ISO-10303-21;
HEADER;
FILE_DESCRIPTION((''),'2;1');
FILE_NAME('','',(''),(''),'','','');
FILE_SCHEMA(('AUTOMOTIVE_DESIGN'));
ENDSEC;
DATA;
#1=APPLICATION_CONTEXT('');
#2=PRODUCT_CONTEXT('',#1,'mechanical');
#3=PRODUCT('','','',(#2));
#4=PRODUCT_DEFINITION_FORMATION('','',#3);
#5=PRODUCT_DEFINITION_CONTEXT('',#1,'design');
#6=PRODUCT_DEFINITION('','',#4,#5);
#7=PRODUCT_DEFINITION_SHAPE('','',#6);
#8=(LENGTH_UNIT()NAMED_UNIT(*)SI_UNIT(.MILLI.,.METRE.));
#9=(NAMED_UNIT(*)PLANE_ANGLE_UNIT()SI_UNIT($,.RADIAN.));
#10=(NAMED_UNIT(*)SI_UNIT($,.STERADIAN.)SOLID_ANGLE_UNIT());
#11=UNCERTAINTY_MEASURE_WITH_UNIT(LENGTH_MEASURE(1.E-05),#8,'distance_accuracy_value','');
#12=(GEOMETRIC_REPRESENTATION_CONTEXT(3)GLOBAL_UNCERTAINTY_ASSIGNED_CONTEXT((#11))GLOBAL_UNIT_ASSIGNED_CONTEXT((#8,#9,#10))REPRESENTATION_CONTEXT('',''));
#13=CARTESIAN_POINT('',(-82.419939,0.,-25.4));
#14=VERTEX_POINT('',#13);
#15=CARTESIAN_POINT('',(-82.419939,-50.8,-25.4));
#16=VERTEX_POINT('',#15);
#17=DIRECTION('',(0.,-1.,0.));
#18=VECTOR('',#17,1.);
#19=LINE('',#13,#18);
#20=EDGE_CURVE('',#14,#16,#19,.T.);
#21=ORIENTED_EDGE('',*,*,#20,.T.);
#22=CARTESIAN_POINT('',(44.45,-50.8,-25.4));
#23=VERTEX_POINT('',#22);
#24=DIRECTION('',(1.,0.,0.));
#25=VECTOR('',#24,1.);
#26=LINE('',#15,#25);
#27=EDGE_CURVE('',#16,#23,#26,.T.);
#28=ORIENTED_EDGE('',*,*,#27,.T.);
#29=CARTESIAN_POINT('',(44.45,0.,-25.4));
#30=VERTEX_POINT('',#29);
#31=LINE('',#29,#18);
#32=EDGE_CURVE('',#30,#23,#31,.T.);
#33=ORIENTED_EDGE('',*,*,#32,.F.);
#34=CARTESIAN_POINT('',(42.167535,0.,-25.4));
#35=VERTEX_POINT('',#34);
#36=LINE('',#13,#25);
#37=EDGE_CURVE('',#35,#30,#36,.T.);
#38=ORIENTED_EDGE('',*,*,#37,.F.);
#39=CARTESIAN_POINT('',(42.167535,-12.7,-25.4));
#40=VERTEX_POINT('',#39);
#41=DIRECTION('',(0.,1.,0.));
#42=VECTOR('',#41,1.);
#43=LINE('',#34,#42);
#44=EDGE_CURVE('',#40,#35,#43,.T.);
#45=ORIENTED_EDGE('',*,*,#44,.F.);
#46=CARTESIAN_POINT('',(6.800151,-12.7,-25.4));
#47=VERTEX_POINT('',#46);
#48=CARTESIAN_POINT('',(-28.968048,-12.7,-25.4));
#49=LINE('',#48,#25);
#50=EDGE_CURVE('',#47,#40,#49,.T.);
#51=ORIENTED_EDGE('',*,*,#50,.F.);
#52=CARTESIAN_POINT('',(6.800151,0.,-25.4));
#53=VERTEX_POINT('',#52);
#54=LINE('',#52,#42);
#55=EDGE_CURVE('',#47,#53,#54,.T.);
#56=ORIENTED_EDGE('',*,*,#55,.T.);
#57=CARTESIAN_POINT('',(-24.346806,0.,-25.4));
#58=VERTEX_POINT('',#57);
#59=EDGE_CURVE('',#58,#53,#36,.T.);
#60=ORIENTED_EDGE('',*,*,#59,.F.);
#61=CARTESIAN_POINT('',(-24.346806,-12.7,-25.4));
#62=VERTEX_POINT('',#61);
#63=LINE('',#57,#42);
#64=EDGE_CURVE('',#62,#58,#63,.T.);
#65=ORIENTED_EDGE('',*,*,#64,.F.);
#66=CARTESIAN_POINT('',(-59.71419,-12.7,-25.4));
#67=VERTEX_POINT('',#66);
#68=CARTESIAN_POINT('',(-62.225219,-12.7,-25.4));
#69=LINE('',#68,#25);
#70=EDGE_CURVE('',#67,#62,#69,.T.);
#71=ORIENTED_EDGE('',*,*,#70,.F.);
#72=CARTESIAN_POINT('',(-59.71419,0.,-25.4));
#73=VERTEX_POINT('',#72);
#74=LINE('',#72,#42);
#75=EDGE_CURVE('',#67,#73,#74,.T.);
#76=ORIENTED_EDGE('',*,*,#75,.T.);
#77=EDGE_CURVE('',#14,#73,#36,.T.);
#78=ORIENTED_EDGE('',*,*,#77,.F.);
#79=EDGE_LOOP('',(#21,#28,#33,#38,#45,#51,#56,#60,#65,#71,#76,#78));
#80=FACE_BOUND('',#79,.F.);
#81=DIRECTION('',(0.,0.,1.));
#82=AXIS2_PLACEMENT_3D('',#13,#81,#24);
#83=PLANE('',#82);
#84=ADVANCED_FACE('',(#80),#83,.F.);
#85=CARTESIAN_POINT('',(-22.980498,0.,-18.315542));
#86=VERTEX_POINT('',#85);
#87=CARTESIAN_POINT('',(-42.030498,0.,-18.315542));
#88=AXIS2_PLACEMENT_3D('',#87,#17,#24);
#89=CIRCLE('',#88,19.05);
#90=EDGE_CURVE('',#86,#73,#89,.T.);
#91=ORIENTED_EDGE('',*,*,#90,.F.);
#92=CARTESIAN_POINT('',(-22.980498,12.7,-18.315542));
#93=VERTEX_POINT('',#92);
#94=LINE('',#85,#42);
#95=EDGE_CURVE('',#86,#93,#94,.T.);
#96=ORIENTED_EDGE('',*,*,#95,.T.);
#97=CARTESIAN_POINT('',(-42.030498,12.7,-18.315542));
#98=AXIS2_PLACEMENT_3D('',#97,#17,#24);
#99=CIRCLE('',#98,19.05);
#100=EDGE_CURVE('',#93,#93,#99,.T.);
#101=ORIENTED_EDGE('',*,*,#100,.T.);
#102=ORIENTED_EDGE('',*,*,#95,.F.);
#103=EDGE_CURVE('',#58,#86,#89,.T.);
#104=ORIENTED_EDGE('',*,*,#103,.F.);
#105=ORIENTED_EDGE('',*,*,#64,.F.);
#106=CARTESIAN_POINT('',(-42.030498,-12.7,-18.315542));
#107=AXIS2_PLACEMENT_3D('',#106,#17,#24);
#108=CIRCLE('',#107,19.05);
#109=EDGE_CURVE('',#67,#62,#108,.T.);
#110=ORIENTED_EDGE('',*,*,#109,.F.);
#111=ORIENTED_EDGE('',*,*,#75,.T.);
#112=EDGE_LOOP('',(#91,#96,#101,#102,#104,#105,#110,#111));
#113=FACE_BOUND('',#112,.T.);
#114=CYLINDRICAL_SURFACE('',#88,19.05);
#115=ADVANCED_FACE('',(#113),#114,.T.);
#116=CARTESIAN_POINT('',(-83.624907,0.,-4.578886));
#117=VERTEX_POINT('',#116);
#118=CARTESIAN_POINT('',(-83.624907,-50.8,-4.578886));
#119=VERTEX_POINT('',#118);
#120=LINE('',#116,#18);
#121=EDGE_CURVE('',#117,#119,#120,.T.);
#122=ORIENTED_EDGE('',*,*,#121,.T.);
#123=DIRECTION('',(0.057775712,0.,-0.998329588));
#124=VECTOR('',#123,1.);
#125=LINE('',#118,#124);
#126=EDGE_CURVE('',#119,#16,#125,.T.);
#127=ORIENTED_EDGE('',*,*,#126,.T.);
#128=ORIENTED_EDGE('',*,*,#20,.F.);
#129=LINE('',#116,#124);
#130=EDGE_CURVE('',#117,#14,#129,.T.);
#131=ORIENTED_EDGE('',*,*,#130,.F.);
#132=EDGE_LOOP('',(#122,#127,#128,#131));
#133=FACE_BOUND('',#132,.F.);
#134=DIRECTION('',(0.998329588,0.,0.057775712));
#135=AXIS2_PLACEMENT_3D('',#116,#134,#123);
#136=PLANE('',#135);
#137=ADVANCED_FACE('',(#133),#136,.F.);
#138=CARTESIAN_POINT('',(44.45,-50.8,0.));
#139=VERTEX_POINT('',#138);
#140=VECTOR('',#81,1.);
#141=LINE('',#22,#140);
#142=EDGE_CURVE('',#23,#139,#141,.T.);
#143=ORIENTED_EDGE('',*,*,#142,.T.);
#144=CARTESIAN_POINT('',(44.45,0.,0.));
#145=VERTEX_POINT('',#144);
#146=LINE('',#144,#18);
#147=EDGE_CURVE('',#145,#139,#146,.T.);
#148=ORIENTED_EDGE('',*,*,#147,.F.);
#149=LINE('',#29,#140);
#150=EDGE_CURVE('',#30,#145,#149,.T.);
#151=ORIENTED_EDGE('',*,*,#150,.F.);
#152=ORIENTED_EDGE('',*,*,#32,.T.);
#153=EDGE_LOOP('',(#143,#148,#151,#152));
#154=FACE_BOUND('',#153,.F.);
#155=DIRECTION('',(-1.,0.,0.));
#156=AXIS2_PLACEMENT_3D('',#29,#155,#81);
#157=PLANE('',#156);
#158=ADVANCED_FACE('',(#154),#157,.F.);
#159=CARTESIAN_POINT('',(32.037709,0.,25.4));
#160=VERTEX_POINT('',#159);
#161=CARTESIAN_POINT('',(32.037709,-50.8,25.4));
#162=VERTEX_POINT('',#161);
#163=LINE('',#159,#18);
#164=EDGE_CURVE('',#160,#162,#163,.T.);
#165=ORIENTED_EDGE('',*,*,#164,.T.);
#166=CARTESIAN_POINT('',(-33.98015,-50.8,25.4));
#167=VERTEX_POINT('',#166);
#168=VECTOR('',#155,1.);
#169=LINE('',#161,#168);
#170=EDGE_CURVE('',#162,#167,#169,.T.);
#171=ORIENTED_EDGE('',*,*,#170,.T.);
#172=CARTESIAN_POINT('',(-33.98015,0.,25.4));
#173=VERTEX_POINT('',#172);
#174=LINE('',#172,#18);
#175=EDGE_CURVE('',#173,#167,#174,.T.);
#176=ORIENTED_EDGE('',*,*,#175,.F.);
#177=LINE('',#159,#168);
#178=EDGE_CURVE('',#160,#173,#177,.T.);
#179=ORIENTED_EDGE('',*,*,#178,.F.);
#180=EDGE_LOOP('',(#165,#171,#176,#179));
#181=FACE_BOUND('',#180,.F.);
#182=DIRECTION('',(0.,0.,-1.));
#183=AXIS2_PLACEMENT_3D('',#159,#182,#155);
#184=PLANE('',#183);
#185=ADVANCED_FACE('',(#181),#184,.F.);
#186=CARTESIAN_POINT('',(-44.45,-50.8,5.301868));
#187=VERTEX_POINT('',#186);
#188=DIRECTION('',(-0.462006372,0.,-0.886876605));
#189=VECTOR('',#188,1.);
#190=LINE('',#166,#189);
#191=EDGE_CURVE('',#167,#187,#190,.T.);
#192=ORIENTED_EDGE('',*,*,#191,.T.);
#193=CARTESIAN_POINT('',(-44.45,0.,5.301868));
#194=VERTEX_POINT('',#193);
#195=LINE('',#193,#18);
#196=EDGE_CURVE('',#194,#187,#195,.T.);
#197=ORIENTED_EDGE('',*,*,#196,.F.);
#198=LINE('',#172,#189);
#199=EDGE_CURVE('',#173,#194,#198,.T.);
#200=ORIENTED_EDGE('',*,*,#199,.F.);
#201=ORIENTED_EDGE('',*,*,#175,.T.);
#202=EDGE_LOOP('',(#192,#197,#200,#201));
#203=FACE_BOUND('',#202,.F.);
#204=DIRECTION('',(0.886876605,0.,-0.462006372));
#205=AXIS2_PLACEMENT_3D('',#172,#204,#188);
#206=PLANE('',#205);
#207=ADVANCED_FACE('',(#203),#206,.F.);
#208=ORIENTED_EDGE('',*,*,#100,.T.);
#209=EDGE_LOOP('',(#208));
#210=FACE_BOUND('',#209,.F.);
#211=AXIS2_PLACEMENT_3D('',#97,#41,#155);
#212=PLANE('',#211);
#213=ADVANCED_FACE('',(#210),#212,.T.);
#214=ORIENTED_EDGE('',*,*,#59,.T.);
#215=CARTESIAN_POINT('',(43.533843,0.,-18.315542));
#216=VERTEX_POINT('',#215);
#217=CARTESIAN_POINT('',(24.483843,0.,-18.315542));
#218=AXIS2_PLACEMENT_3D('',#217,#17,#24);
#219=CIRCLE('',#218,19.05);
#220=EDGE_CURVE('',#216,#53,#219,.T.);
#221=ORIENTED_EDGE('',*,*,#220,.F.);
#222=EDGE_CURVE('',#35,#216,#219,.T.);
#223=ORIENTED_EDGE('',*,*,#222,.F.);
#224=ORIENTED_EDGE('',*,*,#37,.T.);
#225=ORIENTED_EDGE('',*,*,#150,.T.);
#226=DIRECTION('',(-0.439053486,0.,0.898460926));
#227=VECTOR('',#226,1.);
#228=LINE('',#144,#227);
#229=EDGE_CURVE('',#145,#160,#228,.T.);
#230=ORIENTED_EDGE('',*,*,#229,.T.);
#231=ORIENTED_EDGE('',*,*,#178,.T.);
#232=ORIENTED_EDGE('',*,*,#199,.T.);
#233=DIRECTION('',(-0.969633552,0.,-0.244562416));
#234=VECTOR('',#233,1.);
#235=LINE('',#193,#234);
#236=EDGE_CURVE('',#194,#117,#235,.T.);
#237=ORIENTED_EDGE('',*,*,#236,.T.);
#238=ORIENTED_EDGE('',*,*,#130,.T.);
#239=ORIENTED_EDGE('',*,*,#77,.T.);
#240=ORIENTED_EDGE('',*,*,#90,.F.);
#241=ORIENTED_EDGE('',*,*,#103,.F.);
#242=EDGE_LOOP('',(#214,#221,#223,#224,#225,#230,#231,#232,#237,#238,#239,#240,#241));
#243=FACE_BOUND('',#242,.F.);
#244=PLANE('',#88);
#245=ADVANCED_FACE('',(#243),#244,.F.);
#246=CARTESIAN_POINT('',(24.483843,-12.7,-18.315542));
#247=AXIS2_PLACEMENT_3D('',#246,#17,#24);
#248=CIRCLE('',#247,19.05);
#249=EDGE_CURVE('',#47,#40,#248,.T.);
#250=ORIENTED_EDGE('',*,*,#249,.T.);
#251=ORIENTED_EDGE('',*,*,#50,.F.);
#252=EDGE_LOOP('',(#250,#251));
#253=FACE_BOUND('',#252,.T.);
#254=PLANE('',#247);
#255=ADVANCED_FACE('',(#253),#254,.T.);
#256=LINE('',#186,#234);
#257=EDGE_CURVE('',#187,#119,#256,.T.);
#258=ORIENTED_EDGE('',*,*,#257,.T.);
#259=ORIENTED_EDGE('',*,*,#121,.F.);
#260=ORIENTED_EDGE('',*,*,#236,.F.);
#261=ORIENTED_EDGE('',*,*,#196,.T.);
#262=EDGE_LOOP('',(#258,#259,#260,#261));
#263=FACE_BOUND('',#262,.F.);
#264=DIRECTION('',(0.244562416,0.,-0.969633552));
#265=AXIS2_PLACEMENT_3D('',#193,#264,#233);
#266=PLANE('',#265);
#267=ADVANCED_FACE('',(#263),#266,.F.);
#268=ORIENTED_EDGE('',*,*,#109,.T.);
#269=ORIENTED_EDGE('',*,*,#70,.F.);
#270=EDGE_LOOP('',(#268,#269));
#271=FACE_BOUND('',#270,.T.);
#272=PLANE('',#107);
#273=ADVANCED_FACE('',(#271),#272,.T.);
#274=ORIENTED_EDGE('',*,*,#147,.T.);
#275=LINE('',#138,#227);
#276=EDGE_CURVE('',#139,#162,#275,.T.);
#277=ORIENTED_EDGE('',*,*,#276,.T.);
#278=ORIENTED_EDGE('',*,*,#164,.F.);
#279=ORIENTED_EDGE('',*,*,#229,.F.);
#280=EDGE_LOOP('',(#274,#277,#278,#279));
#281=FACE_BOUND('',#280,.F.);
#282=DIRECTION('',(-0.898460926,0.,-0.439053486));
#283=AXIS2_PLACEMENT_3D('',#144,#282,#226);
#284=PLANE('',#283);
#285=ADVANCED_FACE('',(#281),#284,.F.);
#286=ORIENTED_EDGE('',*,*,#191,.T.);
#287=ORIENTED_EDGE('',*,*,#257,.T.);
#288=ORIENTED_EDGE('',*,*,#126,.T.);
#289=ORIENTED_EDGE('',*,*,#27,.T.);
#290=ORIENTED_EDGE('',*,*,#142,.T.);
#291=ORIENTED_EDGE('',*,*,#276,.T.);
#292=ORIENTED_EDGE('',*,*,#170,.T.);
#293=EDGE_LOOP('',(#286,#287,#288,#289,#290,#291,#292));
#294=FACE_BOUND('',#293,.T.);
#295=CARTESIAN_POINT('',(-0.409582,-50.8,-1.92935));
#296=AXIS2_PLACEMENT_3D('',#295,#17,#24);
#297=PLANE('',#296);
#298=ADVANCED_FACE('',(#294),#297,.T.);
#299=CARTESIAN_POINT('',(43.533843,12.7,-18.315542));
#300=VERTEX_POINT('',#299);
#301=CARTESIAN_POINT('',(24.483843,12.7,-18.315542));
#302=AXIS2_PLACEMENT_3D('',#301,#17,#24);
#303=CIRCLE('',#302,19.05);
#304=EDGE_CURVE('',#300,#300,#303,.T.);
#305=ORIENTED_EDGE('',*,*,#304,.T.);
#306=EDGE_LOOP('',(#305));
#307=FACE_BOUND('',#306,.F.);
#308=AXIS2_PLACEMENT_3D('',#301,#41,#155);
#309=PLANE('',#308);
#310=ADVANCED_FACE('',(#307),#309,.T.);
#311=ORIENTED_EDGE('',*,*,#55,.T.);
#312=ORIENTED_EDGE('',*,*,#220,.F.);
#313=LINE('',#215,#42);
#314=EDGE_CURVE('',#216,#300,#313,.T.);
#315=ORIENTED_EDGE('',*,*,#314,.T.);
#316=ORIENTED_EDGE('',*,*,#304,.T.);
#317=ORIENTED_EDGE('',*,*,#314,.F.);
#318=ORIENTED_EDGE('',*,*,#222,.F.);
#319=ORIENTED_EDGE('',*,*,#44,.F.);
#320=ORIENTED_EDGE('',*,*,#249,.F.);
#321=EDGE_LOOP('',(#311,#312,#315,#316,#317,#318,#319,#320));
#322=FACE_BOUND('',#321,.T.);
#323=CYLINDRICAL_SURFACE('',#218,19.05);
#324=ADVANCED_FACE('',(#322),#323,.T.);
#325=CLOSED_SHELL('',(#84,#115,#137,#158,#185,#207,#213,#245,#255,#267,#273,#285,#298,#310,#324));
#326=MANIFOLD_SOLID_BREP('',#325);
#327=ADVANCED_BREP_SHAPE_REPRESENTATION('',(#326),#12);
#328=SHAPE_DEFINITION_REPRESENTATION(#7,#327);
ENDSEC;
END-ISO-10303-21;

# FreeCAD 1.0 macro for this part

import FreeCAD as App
import Part
import Sketcher
from FreeCAD import Vector
Q = App.Units.Quantity

doc = App.newDocument("Part")
body = doc.addObject("PartDesign::Body", "Body")

sketch1 = doc.addObject("Sketcher::SketchObject", "Sketch")
body.addObject(sketch1)
sketch1.AttachmentSupport = (doc.XZ_Plane, [""])
sketch1.MapMode = "FlatFace"
sketch1.addGeometry(Part.LineSegment(Vector(44, -25, 0), Vector(44, 0, 0)), False)
sketch1.addGeometry(Part.LineSegment(Vector(44, 0, 0), Vector(32, 25, 0)), False)
sketch1.addGeometry(Part.LineSegment(Vector(32, 25, 0), Vector(-34, 25, 0)), False)
sketch1.addGeometry(Part.LineSegment(Vector(-34, 25, 0), Vector(-44, 5, 0)), False)
sketch1.addGeometry(Part.LineSegment(Vector(-44, 5, 0), Vector(-84, -5, 0)), False)
sketch1.addGeometry(Part.LineSegment(Vector(-84, -5, 0), Vector(-82, -25, 0)), False)
sketch1.addGeometry(Part.LineSegment(Vector(-82, -25, 0), Vector(44, -25, 0)), False)
sketch1.addConstraint(Sketcher.Constraint("Coincident", 0, 2, 1, 1))
sketch1.addConstraint(Sketcher.Constraint("Coincident", 1, 2, 2, 1))
sketch1.addConstraint(Sketcher.Constraint("Coincident", 2, 2, 3, 1))
sketch1.addConstraint(Sketcher.Constraint("Coincident", 3, 2, 4, 1))
sketch1.addConstraint(Sketcher.Constraint("Coincident", 4, 2, 5, 1))
sketch1.addConstraint(Sketcher.Constraint("Coincident", 5, 2, 6, 1))
sketch1.addConstraint(Sketcher.Constraint("Coincident", 6, 2, 0, 1))
sketch1.addConstraint(Sketcher.Constraint("Vertical", 0))
sketch1.addConstraint(Sketcher.Constraint("Horizontal", 2))
sketch1.addConstraint(Sketcher.Constraint("Horizontal", 6))
sketch1.addConstraint(Sketcher.Constraint("PointOnObject", 0, 2, -1))
sketch1.addConstraint(Sketcher.Constraint("DistanceY", 0, 1, 0, 2, Q("1 in")))
sketch1.addConstraint(Sketcher.Constraint("DistanceY", -1, 1, 1, 2, Q("1 in")))
sketch1.addConstraint(Sketcher.Constraint("DistanceX", 3, 2, 0, 2, Q("3.5 in")))
sketch1.addConstraint(Sketcher.Constraint("DistanceX", -1, 1, 0, 2, Q("1.75 in")))
sketch1.addConstraint(Sketcher.Constraint("Distance", 3, 22.661701))
sketch1.addConstraint(Sketcher.Constraint("DistanceX", 2, 2, 2, 1, 66.017859))
sketch1.addConstraint(Sketcher.Constraint("DistanceX", 6, 1, 6, 2, 126.869939))
sketch1.addConstraint(Sketcher.Constraint("DistanceX", -1, 1, 1, 2, 32.037709))
sketch1.addConstraint(Sketcher.Constraint("Distance", 4, 40.401765))
sketch1.addConstraint(Sketcher.Constraint("Distance", 5, 20.855952))
pad1 = doc.addObject("PartDesign::Pad", "Pad")
body.addObject(pad1)
pad1.Profile = sketch1
pad1.Length = Q("2 in")

sketch2 = doc.addObject("Sketcher::SketchObject", "Sketch001")
body.addObject(sketch2)
sketch2.AttachmentSupport = (doc.XZ_Plane, [""])
sketch2.MapMode = "FlatFace"
sketch2.addGeometry(Part.Circle(Vector(-42, -18, 0), Vector(0, 0, 1), 19), False)
sketch2.addGeometry(Part.Circle(Vector(24, -18, 0), Vector(0, 0, 1), 19), False)
sketch2.addConstraint(Sketcher.Constraint("Equal", 0, 1))
sketch2.addConstraint(Sketcher.Constraint("Horizontal", 0, 3, 1, 3))
sketch2.addConstraint(Sketcher.Constraint("Diameter", 0, Q("1.5 in")))
sketch2.addConstraint(Sketcher.Constraint("DistanceX", 0, 3, -1, 1, 42.030498))
sketch2.addConstraint(Sketcher.Constraint("DistanceX", 0, 3, 1, 3, 66.514341))
sketch2.addConstraint(Sketcher.Constraint("DistanceY", 0, 3, -1, 1, 18.315542))
pocket1 = doc.addObject("PartDesign::Pocket", "Pocket")
body.addObject(pocket1)
pocket1.Profile = sketch2
pocket1.Length = Q("0.5 in")
pocket1.Reversed = True
body2 = doc.addObject("PartDesign::Body", "Body001")

sketch3 = doc.addObject("Sketcher::SketchObject", "Sketch002")
body2.addObject(sketch3)
sketch3.AttachmentSupport = (doc.getObject("XZ_Plane001"), [""])
sketch3.MapMode = "FlatFace"
sketch3.addGeometry(Part.Circle(Vector(24, -18, 0), Vector(0, 0, 1), 19), False)
sketch3.addConstraint(Sketcher.Constraint("Diameter", 0, Q("1.5 in")))
sketch3.addConstraint(Sketcher.Constraint("DistanceX", -1, 1, 0, 3, 24.483843))
sketch3.addConstraint(Sketcher.Constraint("DistanceY", 0, 3, -1, 1, 18.315542))
pad2 = doc.addObject("PartDesign::Pad", "Pad001")
body2.addObject(pad2)
pad2.Profile = sketch3
pad2.Length = Q("0.5 in")
body3 = doc.addObject("PartDesign::Body", "Body002")

sketch4 = doc.addObject("Sketcher::SketchObject", "Sketch003")
body3.addObject(sketch4)
sketch4.AttachmentSupport = (doc.getObject("XZ_Plane002"), [""])
sketch4.MapMode = "FlatFace"
sketch4.addGeometry(Part.Circle(Vector(-42, -18, 0), Vector(0, 0, 1), 19), False)
sketch4.addConstraint(Sketcher.Constraint("Diameter", 0, Q("1.5 in")))
sketch4.addConstraint(Sketcher.Constraint("DistanceX", 0, 3, -1, 1, 42.030498))
sketch4.addConstraint(Sketcher.Constraint("DistanceY", 0, 3, -1, 1, 18.315542))
pad3 = doc.addObject("PartDesign::Pad", "Pad002")
body3.addObject(pad3)
pad3.Profile = sketch4
pad3.Length = Q("0.5 in")
doc.recompute()

body4 = doc.addObject("PartDesign::Body", "Body003")
body4.BaseFeature = body2
boolean = doc.addObject("PartDesign::Boolean", "Boolean")
body.addObject(boolean)
boolean.Type = "Fuse"
boolean.addObjects([body4])
doc.recompute()

body5 = doc.addObject("PartDesign::Body", "Body004")
body5.BaseFeature = body3
boolean2 = doc.addObject("PartDesign::Boolean", "Boolean001")
body.addObject(boolean2)
boolean2.Type = "Fuse"
boolean2.addObjects([body5])
doc.recompute()

mirroring = doc.addObject("Part::Mirroring", "Mirroring")
mirroring.Source = body3
mirroring.Base = Vector(0, 0, 0)
mirroring.Normal = Vector(0, -1, 0)
body6 = doc.addObject("PartDesign::Body", "Body005")
body6.BaseFeature = mirroring
boolean3 = doc.addObject("PartDesign::Boolean", "Boolean002")
body.addObject(boolean3)
boolean3.Type = "Fuse"
boolean3.addObjects([body6])
doc.recompute()

mirroring2 = doc.addObject("Part::Mirroring", "Mirroring001")
mirroring2.Source = body2
mirroring2.Base = Vector(0, 0, 0)
mirroring2.Normal = Vector(0, -1, 0)
body7 = doc.addObject("PartDesign::Body", "Body006")
body7.BaseFeature = mirroring2
boolean4 = doc.addObject("PartDesign::Boolean", "Boolean003")
body.addObject(boolean4)
boolean4.Type = "Fuse"
boolean4.addObjects([body7])
doc.recompute()
mirroring.Visibility = False
mirroring2.Visibility = False

doc.recompute()
